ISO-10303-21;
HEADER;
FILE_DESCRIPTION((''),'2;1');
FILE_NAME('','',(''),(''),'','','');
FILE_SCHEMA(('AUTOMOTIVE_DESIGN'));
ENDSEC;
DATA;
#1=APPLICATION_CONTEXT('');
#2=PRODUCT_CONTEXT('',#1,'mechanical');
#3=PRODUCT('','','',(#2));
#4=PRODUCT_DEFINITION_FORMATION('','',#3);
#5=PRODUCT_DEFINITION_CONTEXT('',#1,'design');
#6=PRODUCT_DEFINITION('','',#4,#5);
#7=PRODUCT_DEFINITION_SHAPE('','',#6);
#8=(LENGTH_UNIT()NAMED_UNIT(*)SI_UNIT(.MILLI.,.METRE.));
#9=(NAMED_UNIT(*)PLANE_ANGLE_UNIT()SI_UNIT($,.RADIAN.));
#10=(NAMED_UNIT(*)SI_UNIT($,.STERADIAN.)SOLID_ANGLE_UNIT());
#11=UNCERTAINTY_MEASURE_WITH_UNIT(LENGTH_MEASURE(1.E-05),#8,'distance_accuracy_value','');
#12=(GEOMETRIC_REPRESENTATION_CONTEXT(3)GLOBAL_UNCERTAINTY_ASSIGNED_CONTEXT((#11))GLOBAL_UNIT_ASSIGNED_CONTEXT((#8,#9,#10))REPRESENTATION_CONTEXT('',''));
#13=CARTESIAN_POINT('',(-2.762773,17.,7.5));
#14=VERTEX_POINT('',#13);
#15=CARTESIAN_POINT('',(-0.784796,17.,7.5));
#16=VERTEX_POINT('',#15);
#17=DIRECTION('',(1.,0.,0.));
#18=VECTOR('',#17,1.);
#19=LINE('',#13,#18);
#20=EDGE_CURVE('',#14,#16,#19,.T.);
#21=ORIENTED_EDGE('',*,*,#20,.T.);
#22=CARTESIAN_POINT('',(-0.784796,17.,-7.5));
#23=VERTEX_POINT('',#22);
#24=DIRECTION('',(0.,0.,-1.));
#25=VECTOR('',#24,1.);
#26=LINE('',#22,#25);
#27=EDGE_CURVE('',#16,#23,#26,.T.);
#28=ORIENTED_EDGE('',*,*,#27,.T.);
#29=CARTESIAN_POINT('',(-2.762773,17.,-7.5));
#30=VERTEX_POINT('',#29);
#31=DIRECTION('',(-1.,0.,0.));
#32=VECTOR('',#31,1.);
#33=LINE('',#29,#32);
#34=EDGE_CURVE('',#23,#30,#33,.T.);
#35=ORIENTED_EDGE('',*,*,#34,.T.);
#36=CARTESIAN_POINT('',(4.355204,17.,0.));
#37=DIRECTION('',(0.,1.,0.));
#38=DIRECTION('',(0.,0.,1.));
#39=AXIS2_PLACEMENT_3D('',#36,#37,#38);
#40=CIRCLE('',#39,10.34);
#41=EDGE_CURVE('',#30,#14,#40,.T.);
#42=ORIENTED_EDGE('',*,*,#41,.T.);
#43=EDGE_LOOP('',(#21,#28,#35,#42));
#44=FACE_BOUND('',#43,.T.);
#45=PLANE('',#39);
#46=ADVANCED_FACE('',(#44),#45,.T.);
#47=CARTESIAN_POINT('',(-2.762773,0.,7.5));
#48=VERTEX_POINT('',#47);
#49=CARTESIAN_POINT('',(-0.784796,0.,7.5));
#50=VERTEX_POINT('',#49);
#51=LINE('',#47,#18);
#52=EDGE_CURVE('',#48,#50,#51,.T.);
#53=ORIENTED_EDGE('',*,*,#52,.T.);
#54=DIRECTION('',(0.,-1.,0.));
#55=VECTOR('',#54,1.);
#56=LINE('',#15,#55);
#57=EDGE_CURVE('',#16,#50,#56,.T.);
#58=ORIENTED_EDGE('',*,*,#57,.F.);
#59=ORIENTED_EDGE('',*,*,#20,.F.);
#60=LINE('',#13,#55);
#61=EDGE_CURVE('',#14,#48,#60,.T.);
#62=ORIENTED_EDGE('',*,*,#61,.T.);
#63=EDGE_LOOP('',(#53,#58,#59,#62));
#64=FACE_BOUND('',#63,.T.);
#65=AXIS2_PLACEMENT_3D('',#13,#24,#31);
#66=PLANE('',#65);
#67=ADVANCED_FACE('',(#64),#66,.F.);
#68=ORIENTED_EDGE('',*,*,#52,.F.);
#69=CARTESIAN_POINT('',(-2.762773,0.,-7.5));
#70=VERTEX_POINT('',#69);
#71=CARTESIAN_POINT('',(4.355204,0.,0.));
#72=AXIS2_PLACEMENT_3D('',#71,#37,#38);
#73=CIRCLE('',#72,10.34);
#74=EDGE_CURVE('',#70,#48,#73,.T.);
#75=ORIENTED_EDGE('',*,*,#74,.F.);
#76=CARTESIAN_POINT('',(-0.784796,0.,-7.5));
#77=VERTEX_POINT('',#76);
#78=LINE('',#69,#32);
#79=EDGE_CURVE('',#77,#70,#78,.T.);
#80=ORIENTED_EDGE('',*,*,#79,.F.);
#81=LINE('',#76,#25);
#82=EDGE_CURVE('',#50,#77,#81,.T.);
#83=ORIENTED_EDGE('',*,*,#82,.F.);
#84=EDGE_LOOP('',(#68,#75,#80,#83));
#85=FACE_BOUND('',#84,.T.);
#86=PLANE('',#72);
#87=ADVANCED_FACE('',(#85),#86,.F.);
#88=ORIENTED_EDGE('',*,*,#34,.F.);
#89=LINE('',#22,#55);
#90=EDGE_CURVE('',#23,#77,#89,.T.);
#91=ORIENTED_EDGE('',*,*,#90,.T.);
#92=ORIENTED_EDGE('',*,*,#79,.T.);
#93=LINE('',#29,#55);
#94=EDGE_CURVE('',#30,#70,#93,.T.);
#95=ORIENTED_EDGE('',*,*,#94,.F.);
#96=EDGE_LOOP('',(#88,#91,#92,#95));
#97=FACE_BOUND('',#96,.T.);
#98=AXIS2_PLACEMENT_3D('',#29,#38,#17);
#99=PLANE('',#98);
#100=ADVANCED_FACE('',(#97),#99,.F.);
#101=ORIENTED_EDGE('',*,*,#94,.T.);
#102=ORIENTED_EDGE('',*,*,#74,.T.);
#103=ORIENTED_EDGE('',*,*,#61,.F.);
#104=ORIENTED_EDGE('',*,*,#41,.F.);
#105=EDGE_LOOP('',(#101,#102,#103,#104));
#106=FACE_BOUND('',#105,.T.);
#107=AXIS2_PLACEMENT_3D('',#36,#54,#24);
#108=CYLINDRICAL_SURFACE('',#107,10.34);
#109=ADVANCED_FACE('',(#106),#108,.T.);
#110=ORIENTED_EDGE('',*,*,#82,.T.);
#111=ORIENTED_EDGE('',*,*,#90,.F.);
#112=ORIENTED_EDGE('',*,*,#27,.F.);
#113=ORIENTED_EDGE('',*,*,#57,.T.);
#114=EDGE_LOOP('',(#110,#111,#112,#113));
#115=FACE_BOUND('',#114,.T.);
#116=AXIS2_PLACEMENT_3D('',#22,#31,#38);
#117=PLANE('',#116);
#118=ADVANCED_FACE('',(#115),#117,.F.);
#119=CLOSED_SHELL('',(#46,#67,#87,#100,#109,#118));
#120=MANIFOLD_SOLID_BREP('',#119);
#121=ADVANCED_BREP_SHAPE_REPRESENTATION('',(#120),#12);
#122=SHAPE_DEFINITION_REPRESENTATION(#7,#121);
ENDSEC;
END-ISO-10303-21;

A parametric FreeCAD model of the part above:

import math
import FreeCAD as App
import Part
import Sketcher

doc = App.newDocument("Part")
params = doc.addObject("Spreadsheet::Sheet", "Params")
for row, (alias, value) in enumerate([
    ("sketch1_height", "15 mm"),
    ("sketch1_radius", "10.34 mm"),
    ("pad1_length", "17 mm"),
], start=1):
    params.set(f"A{row}", alias)
    params.set(f"B{row}", "=" + value)
    params.setAlias(f"B{row}", alias)

body = doc.addObject("PartDesign::Body", "Body")

sketch1 = body.newObject("Sketcher::SketchObject", "Sketch")
sketch1.AttachmentSupport = (doc.getObject("XZ_Plane"), [""])
sketch1.MapMode = "FlatFace"
sketch1.addGeometry([
    Part.LineSegment(App.Vector(-0.8, -7.5, 0), App.Vector(-2.8, -7.5, 0)),
    Part.ArcOfCircle(Part.Circle(App.Vector(4.4, 0, 0), App.Vector(0, 0, 1), 10.3), math.radians(134), math.radians(226)),
    Part.LineSegment(App.Vector(-2.8, 7.5, 0), App.Vector(-0.8, 7.5, 0)),
    Part.LineSegment(App.Vector(-0.8, 7.5, 0), App.Vector(-0.8, -7.5, 0)),
], False)
sketch1.addConstraint([
    Sketcher.Constraint("Coincident", 0, 2, 1, 2),
    Sketcher.Constraint("Coincident", 1, 1, 2, 1),
    Sketcher.Constraint("Coincident", 2, 2, 3, 1),
    Sketcher.Constraint("Coincident", 3, 2, 0, 1),
    Sketcher.Constraint("Horizontal", 0),
    Sketcher.Constraint("Horizontal", 2),
    Sketcher.Constraint("Vertical", 3),
    Sketcher.Constraint("Symmetric", 0, 2, 1, 1, -1),
    Sketcher.Constraint("DistanceY", 3, 2, 3, 1, 15.0),
    Sketcher.Constraint("Radius", 1, 10.34),
    Sketcher.Constraint("DistanceX", 2, 2, 1, 3, 5.14),
    Sketcher.Constraint("DistanceX", -1, 1, 1, 3, 4.355204),
])
sketch1.setExpression("Constraints[8]", "Params.sketch1_height")
sketch1.setExpression("Constraints[9]", "Params.sketch1_radius")
pad1 = body.newObject("PartDesign::Pad", "Pad")
pad1.Profile = sketch1
pad1.setExpression("Length", "Params.pad1_length")
pad1.Reversed = True

doc.recompute()
